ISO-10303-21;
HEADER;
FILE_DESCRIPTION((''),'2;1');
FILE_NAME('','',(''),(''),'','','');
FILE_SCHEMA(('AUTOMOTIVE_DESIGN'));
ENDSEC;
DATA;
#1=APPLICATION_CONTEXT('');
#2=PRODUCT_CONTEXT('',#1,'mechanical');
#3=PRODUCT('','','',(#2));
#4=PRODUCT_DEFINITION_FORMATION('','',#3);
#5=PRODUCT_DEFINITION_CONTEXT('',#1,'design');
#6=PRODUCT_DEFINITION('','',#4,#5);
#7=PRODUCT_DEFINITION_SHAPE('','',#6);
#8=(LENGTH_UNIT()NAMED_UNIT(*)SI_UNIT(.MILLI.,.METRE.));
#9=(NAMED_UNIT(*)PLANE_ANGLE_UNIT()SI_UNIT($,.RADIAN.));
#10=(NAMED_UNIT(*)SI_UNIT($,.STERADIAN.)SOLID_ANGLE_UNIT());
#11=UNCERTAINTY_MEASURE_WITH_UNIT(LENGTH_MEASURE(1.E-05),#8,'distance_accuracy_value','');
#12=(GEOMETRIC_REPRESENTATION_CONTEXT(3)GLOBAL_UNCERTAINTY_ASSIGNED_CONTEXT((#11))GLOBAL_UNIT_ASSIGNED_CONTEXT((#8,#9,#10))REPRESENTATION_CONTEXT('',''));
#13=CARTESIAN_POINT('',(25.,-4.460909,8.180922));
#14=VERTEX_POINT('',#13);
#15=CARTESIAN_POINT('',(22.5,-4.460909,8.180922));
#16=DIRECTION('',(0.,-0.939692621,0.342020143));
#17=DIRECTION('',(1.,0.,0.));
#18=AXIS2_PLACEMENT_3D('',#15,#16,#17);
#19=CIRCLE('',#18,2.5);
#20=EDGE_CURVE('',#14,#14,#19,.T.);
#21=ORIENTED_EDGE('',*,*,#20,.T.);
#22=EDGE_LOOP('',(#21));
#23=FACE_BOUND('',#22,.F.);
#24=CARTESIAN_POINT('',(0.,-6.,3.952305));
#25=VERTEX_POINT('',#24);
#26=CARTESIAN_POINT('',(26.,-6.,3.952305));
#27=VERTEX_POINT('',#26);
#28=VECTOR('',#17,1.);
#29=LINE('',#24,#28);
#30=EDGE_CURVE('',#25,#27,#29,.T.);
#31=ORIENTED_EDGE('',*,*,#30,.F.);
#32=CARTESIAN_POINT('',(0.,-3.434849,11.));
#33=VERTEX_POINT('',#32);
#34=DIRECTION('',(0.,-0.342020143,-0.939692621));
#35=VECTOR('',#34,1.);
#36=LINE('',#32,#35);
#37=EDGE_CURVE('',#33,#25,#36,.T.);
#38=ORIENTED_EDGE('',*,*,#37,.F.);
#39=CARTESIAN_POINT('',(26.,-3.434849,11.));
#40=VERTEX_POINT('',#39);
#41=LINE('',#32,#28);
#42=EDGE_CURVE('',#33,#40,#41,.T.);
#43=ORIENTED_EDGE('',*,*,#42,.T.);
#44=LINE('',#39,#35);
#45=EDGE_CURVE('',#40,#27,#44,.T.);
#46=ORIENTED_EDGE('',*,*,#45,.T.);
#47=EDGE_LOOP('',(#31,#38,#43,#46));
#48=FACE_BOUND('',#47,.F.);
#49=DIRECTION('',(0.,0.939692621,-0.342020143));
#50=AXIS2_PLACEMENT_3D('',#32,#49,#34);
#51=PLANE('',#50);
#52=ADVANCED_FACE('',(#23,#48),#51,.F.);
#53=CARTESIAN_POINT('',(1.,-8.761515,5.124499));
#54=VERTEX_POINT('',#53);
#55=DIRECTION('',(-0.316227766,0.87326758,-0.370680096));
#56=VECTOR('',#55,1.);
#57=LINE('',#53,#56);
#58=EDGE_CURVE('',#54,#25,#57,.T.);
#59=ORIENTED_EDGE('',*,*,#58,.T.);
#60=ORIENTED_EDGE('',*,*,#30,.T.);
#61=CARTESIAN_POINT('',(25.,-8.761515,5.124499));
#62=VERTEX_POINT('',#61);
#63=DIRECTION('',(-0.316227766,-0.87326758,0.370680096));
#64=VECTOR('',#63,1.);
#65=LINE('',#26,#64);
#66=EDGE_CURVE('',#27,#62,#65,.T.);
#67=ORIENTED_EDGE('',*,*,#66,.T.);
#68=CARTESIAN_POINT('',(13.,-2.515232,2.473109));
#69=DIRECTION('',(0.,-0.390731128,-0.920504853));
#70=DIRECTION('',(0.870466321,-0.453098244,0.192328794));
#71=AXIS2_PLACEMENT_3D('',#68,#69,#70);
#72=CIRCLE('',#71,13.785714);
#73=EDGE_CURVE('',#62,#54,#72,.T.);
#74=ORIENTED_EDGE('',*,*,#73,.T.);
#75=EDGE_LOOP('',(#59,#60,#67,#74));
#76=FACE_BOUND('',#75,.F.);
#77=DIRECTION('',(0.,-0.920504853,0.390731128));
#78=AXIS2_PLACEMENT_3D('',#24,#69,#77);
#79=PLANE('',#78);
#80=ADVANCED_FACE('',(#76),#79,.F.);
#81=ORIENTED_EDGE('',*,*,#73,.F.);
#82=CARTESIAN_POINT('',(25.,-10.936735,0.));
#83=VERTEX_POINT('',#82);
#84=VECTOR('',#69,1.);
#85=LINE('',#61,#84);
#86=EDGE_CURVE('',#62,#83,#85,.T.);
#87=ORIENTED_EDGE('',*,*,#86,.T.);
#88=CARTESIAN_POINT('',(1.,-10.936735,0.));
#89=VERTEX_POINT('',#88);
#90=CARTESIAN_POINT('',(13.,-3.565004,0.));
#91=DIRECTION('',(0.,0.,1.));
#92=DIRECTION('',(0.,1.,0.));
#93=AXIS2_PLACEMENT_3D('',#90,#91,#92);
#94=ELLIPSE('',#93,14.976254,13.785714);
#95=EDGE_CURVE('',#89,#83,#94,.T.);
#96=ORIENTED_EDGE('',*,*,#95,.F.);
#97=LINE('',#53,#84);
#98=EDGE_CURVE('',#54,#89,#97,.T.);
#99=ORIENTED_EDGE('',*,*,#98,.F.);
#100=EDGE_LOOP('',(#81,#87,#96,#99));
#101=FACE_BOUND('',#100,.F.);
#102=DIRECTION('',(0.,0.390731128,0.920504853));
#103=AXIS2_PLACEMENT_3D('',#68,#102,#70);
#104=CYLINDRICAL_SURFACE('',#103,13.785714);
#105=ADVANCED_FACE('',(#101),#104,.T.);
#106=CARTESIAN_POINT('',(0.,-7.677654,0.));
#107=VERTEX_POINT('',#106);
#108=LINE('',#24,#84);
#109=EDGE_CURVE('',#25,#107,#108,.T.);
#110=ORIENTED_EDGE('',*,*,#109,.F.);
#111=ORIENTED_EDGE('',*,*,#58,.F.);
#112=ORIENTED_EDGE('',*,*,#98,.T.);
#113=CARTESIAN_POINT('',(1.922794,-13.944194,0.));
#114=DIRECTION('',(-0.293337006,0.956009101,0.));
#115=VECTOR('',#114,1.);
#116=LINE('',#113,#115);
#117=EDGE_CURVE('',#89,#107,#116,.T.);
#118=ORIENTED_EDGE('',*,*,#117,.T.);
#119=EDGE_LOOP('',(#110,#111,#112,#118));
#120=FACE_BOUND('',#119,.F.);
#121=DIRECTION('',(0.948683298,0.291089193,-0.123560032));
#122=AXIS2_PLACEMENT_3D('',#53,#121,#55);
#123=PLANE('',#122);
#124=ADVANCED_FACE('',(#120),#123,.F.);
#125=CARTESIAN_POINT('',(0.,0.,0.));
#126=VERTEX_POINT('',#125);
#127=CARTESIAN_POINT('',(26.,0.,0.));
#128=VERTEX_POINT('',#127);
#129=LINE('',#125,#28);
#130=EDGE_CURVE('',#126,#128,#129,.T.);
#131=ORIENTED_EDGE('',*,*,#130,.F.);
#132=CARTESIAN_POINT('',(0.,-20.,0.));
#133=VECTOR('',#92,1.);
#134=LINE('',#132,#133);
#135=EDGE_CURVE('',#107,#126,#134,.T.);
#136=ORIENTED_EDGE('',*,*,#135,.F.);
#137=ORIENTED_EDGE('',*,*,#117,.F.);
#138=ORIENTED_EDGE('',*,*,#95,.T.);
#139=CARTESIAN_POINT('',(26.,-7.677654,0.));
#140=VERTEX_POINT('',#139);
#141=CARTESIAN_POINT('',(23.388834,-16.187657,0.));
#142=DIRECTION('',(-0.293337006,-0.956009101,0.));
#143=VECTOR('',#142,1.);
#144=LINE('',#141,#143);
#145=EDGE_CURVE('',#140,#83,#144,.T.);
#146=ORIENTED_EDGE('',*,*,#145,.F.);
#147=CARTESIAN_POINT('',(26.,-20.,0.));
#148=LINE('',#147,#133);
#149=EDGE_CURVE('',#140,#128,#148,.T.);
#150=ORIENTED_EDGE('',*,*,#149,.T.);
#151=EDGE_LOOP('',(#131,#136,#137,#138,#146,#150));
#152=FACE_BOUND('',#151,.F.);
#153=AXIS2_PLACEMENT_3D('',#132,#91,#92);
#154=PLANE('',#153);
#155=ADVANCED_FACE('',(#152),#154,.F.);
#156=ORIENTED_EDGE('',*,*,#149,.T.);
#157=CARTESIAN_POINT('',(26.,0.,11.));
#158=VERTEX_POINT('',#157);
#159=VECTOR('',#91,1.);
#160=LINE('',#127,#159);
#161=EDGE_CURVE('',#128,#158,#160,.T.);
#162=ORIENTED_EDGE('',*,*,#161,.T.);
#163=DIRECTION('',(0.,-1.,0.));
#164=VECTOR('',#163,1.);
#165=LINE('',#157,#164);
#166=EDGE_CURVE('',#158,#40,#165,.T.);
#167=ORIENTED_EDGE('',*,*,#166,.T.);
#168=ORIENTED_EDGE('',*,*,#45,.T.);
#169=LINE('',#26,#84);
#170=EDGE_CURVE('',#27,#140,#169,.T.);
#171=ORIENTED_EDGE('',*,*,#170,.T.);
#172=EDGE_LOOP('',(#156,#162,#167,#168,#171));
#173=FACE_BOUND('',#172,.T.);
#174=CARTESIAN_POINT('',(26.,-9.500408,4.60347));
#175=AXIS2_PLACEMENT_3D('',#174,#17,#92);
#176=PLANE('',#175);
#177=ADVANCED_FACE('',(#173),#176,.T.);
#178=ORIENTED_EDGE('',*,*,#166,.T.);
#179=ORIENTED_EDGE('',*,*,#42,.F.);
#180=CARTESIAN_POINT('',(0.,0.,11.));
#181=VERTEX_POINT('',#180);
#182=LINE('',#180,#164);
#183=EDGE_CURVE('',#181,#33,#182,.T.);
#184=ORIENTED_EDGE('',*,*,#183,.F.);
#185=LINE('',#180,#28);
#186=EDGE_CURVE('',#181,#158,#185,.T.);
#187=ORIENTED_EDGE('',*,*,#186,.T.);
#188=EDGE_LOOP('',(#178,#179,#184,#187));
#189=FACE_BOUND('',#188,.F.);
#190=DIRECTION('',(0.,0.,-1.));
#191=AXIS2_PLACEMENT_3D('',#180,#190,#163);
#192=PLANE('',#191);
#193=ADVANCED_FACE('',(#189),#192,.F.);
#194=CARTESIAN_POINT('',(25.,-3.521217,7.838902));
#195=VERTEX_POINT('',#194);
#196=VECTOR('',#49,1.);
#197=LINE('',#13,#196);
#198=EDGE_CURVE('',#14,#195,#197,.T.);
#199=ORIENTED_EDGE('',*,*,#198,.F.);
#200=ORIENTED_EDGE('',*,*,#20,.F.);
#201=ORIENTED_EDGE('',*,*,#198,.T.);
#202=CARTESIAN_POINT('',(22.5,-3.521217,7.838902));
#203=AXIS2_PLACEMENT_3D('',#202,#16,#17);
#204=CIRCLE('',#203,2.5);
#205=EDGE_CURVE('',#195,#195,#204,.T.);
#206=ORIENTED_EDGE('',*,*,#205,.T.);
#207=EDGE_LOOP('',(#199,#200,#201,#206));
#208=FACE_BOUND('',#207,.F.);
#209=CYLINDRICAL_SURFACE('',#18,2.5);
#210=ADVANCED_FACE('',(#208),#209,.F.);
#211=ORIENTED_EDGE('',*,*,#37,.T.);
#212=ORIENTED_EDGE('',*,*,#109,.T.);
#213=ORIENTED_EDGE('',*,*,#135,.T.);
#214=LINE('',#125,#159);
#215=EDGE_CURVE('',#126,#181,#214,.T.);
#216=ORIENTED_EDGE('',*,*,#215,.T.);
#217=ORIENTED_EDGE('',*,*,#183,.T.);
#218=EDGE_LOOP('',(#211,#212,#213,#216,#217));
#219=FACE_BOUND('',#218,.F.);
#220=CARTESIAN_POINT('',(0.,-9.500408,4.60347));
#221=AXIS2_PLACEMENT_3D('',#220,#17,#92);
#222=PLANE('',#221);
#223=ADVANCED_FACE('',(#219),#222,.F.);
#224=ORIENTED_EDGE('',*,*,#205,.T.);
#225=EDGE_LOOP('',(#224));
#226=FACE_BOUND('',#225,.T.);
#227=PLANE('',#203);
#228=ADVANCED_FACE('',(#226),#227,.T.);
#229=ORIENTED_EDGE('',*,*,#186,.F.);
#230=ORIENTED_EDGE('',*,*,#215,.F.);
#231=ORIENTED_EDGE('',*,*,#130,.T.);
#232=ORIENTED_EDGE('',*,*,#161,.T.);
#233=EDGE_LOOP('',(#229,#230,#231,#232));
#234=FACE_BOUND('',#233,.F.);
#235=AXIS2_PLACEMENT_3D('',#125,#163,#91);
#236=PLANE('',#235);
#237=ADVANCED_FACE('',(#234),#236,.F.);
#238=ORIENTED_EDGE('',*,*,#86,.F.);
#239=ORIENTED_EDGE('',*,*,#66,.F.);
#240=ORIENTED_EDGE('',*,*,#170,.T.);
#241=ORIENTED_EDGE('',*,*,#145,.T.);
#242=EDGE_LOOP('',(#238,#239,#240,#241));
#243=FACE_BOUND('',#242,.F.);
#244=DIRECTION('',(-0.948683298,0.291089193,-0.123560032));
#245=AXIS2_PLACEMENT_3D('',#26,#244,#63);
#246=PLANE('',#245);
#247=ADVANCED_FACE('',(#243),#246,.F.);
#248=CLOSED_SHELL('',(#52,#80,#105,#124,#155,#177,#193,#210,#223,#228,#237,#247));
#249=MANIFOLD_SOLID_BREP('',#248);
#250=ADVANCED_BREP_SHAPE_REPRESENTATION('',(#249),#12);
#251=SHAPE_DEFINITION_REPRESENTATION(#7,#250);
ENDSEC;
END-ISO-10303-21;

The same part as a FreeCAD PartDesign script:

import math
import FreeCAD as App
import Part
import Sketcher

V = App.Vector
Q = App.Units.Quantity


def add_polygon(sketch, points):
    """Adds a closed chain of lines whose ends are joined by coincident constraints."""
    first, n = sketch.GeometryCount, len(points)
    for a, b in zip(points, points[1:] + points[:1]):
        sketch.addGeometry(Part.LineSegment(App.Vector(*a, 0), App.Vector(*b, 0)), False)
    for i in range(n):
        sketch.addConstraint(Sketcher.Constraint("Coincident", first + i, 2, first + (i + 1) % n, 1))

doc = App.newDocument("Part")
body = doc.addObject("PartDesign::Body", "Body")

# Sketch on YZ plane
sketch1 = body.newObject("Sketcher::SketchObject", "Sketch")
sketch1.AttachmentSupport = (doc.getObject("YZ_Plane"), [""])
sketch1.MapMode = "FlatFace"
add_polygon(sketch1, [(0, 0), (0, 11), (-3.4, 11), (-6, 4), (-20, 9.9), (-20, 0)])  # lines 0-5
sketch1.addConstraint([
    Sketcher.Constraint("Vertical", 0),
    Sketcher.Constraint("Horizontal", 1),
    Sketcher.Constraint("Vertical", 4),
    Sketcher.Constraint("Horizontal", 5),
    Sketcher.Constraint("Coincident", 5, 2, -1, 1),
    Sketcher.Constraint("DistanceX", 5, 1, 5, 2, 20.0),
    Sketcher.Constraint("DistanceY", 0, 1, 0, 2, 11.0),
    Sketcher.Constraint("Angle", 2, Q("-110 deg")),
    Sketcher.Constraint("Angle", 3, Q("157 deg")),
    Sketcher.Constraint("DistanceX", 2, 2, -1, 1, 6.0),
    Sketcher.Constraint("Distance", 2, 7.5),
])
pad1 = body.newObject("PartDesign::Pad", "Pad")
pad1.Profile = sketch1
pad1.Length = 26

# Sketch on an angled plane
sketch2 = body.newObject("Sketcher::SketchObject", "Sketch001")
sketch2.Placement = App.Placement(V(0, -6.56838, 2.390695), App.Rotation(V(1, 0, 0), V(0, 0.342020143, 0.939692621), V(0, -0.939692621, 0.342020143), "ZXY"))
sketch2.addGeometry(Part.Circle(V(22.5, 6.2, 0), V(0, 0, 1), 2.5), False)
sketch2.addConstraint([
    Sketcher.Constraint("Diameter", 0, 5.0),
    Sketcher.Constraint("DistanceX", -1, 1, 0, 3, 22.5),
    Sketcher.Constraint("DistanceY", -1, 1, 0, 3, 6.161831),
])
pocket1 = body.newObject("PartDesign::Pocket", "Pocket")
pocket1.Profile = sketch2
pocket1.Length = 1

# Sketch on an angled plane
sketch3 = body.newObject("Sketcher::SketchObject", "Sketch002")
sketch3.Placement = App.Placement(V(0, 0.5055, 1.190884), App.Rotation(V(1, 0, 0), V(0, 0.920504853, -0.390731128), V(0, 0.390731128, 0.920504853), "ZXY"))
sketch3.addGeometry([
    Part.LineSegment(V(26, -7.1, 0), V(25, -10.1, 0)),  # 0
    Part.ArcOfCircle(Part.Circle(V(13, -3.3, 0), V(0, 0, 1), 13.8), math.radians(-151), math.radians(-29)),  # 1
    Part.LineSegment(V(1, -10.1, 0), V(0, -7.1, 0)),  # 2
    Part.LineSegment(V(0, -7.1, 0), V(0, -22.3, 0)),  # 3
    Part.LineSegment(V(0, -22.3, 0), V(26, -22.3, 0)),  # 4
    Part.LineSegment(V(26, -22.3, 0), V(26, -7.1, 0)),  # 5
], False)
sketch3.addConstraint([
    Sketcher.Constraint("Coincident", 0, 2, 1, 2),
    Sketcher.Constraint("Coincident", 1, 1, 2, 1),
    Sketcher.Constraint("Coincident", 2, 2, 3, 1),
    Sketcher.Constraint("Coincident", 3, 2, 4, 1),
    Sketcher.Constraint("Coincident", 4, 2, 5, 1),
    Sketcher.Constraint("Coincident", 5, 2, 0, 1),
    Sketcher.Constraint("Vertical", 3),
    Sketcher.Constraint("Horizontal", 4),
    Sketcher.Constraint("Vertical", 5),
    Sketcher.Constraint("PointOnObject", 2, 2, -2),
    Sketcher.Constraint("Horizontal", 0, 2, 1, 1),
    Sketcher.Constraint("Horizontal", 2, 2, 5, 2),
    Sketcher.Constraint("Equal", 0, 2),
    Sketcher.Constraint("DistanceX", 4, 1, 4, 2, 26.0),
    Sketcher.Constraint("DistanceX", -1, 1, 0, 2, 25.0),
    Sketcher.Constraint("DistanceY", 1, 1, 2, 2, 3.0),
    Sketcher.Constraint("Radius", 1, 13.785714),
    Sketcher.Constraint("DistanceY", 3, 2, 3, 1, 15.209045),
    Sketcher.Constraint("DistanceY", 1, 3, -1, 1, 3.281604),
])
pocket2 = body.newObject("PartDesign::Pocket", "Pocket001")
pocket2.Profile = sketch3
pocket2.Type = "ThroughAll"

doc.recompute()
